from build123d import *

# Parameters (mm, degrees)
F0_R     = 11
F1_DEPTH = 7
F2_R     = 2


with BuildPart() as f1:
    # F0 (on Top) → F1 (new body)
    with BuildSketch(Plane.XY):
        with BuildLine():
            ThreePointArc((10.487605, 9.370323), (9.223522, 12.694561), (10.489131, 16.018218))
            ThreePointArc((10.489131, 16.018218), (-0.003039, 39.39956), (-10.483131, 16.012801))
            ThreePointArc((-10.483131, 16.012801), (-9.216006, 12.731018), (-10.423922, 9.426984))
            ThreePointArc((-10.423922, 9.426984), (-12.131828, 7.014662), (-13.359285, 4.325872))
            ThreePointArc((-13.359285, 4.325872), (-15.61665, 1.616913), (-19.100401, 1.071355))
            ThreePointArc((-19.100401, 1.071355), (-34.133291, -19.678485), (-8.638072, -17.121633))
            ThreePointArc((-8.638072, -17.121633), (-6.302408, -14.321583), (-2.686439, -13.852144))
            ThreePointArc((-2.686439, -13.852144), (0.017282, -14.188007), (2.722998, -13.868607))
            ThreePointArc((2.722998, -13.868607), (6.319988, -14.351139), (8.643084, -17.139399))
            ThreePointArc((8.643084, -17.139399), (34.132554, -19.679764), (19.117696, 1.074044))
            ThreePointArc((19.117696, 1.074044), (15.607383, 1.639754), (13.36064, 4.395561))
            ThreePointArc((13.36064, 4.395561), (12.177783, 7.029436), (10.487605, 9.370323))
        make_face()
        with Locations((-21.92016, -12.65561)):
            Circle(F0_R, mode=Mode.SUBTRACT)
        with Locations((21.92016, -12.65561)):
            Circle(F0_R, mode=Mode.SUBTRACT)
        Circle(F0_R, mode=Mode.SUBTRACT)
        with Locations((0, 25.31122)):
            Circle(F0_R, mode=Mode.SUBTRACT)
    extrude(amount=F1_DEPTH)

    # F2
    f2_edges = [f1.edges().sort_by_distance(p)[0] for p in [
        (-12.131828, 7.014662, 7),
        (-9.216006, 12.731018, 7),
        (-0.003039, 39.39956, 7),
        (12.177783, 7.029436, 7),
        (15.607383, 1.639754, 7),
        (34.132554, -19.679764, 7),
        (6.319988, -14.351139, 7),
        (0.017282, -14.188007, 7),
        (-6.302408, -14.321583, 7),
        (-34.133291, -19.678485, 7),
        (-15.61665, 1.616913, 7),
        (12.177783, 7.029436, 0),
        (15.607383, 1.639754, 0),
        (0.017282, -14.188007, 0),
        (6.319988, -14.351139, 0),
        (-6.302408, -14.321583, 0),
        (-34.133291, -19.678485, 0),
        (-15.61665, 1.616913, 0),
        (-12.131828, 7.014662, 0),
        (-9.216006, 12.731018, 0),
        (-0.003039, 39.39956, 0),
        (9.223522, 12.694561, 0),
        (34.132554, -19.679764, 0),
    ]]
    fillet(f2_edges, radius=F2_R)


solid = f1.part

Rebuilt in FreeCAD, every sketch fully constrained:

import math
import FreeCAD as App
import Part
import Sketcher
Q = App.Units.Quantity


def edges_at(feature, points):
    """Names of the edges that pass closest to the given points."""
    edges = feature.Shape.Edges
    near = lambda p: min(range(len(edges)), key=lambda i: edges[i].distToShape(Part.Vertex(*p))[0])
    return sorted({f"Edge{near(p) + 1}" for p in points})

doc = App.newDocument("Part")
body = doc.addObject("PartDesign::Body", "Body")

# Sketch on XY plane
sketch1 = doc.addObject("Sketcher::SketchObject", "Sketch")
body.addObject(sketch1)
sketch1.AttachmentSupport = (doc.XY_Plane, [""])
sketch1.MapMode = "FlatFace"
sketch1.addGeometry(Part.ArcOfCircle(Part.Circle(App.Vector(14.2, 12.7, 0), App.Vector(0, 0, 1), 5), math.radians(138), math.radians(222)), False)
sketch1.addGeometry(Part.ArcOfCircle(Part.Circle(App.Vector(0, 25.4, 0), App.Vector(0, 0, 1), 14), math.radians(-42), math.radians(222)), False)
sketch1.addGeometry(Part.ArcOfCircle(Part.Circle(App.Vector(-14.2, 12.7, 0), App.Vector(0, 0, 1), 5), math.radians(-41), math.radians(42)), False)
sketch1.addGeometry(Part.ArcOfCircle(Part.Circle(App.Vector(1.5, -0.8, 0), App.Vector(0, 0, 1), 15.8), math.radians(139), math.radians(161)), False)
sketch1.addGeometry(Part.ArcOfCircle(Part.Circle(App.Vector(-18.1, 6, 0), App.Vector(0, 0, 1), 5), math.radians(-102), math.radians(-19)), False)
sketch1.addGeometry(Part.ArcOfCircle(Part.Circle(App.Vector(-22, -12.7, 0), App.Vector(0, 0, 1), 14), math.radians(78), math.radians(342)), False)
sketch1.addGeometry(Part.ArcOfCircle(Part.Circle(App.Vector(-3.9, -18.7, 0), App.Vector(0, 0, 1), 5), math.radians(76), math.radians(162)), False)
sketch1.addGeometry(Part.ArcOfCircle(Part.Circle(App.Vector(0.1, -2.9, 0), App.Vector(0, 0, 1), 11.3), math.radians(-104), math.radians(-76)), False)
sketch1.addGeometry(Part.ArcOfCircle(Part.Circle(App.Vector(3.9, -18.7, 0), App.Vector(0, 0, 1), 5), math.radians(19), math.radians(104)), False)
sketch1.addGeometry(Part.ArcOfCircle(Part.Circle(App.Vector(22, -12.7, 0), App.Vector(0, 0, 1), 14), math.radians(-161), math.radians(102)), False)
sketch1.addGeometry(Part.ArcOfCircle(Part.Circle(App.Vector(18.1, 6, 0), App.Vector(0, 0, 1), 5), math.radians(-162), math.radians(-78)), False)
sketch1.addGeometry(Part.ArcOfCircle(Part.Circle(App.Vector(-0.1, -0.1, 0), App.Vector(0, 0, 1), 14.2), math.radians(18), math.radians(42)), False)
sketch1.addGeometry(Part.Circle(App.Vector(-21.9, -12.7, 0), App.Vector(0, 0, 1), 11), False)
sketch1.addGeometry(Part.Circle(App.Vector(21.9, -12.7, 0), App.Vector(0, 0, 1), 11), False)
sketch1.addGeometry(Part.Circle(App.Vector(0, 0, 0), App.Vector(0, 0, 1), 11), False)
sketch1.addGeometry(Part.Circle(App.Vector(0, 25.3, 0), App.Vector(0, 0, 1), 11), False)
sketch1.addConstraint(Sketcher.Constraint("Tangent", 0, 1, 1, 1))
sketch1.addConstraint(Sketcher.Constraint("Tangent", 1, 2, 2, 2))
sketch1.addConstraint(Sketcher.Constraint("Tangent", 2, 1, 3, 1))
sketch1.addConstraint(Sketcher.Constraint("Tangent", 3, 2, 4, 2))
sketch1.addConstraint(Sketcher.Constraint("Tangent", 4, 1, 5, 1))
sketch1.addConstraint(Sketcher.Constraint("Tangent", 5, 2, 6, 2))
sketch1.addConstraint(Sketcher.Constraint("Tangent", 6, 1, 7, 1))
sketch1.addConstraint(Sketcher.Constraint("Tangent", 7, 2, 8, 2))
sketch1.addConstraint(Sketcher.Constraint("Tangent", 8, 1, 9, 1))
sketch1.addConstraint(Sketcher.Constraint("Tangent", 9, 2, 10, 2))
sketch1.addConstraint(Sketcher.Constraint("Tangent", 10, 1, 11, 1))
sketch1.addConstraint(Sketcher.Constraint("Tangent", 11, 2, 0, 2))
sketch1.addConstraint(Sketcher.Constraint("Coincident", 14, 3, -1, 1))
sketch1.addConstraint(Sketcher.Constraint("Equal", 0, 2))
sketch1.addConstraint(Sketcher.Constraint("Equal", 2, 4))
sketch1.addConstraint(Sketcher.Constraint("Equal", 1, 5))
sketch1.addConstraint(Sketcher.Constraint("Equal", 2, 6))
sketch1.addConstraint(Sketcher.Constraint("Equal", 4, 8))
sketch1.addConstraint(Sketcher.Constraint("Equal", 5, 9))
sketch1.addConstraint(Sketcher.Constraint("Equal", 8, 10))
sketch1.addConstraint(Sketcher.Constraint("Equal", 12, 13))
sketch1.addConstraint(Sketcher.Constraint("Equal", 13, 14))
sketch1.addConstraint(Sketcher.Constraint("Equal", 14, 15))
sketch1.addConstraint(Sketcher.Constraint("Symmetric", 12, 3, 13, 3, -2))
sketch1.addConstraint(Sketcher.Constraint("PointOnObject", 15, 3, -2))
sketch1.addConstraint(Sketcher.Constraint("Diameter", 12, Q("22 mm")))
sketch1.addConstraint(Sketcher.Constraint("Radius", 0, Q("5.000001 mm")))
sketch1.addConstraint(Sketcher.Constraint("Radius", 1, Q("14.043178 mm")))
sketch1.addConstraint(Sketcher.Constraint("Radius", 3, Q("15.76041 mm")))
sketch1.addConstraint(Sketcher.Constraint("Radius", 7, Q("11.328091 mm")))
sketch1.addConstraint(Sketcher.Constraint("DistanceX", -1, 1, 7, 2, Q("2.722998 mm")))
sketch1.addConstraint(Sketcher.Constraint("Radius", 11, Q("14.229744 mm")))
sketch1.addConstraint(Sketcher.Constraint("DistanceX", 4, 3, 1, 3, Q("18.082999 mm")))
sketch1.addConstraint(Sketcher.Constraint("DistanceY", 8, 3, 13, 3, Q("6.071999 mm")))
sketch1.addConstraint(Sketcher.Constraint("DistanceY", 0, 1, 15, 3, Q("9.293002 mm")))
sketch1.addConstraint(Sketcher.Constraint("DistanceY", 8, 3, 7, 2, Q("4.859002 mm")))
sketch1.addConstraint(Sketcher.Constraint("DistanceY", 9, 3, -1, 1, Q("12.6787 mm")))
sketch1.addConstraint(Sketcher.Constraint("DistanceY", -1, 1, 1, 2, Q("16.012801 mm")))
sketch1.addConstraint(Sketcher.Constraint("DistanceX", 4, 1, -1, 1, Q("19.100401 mm")))
sketch1.addConstraint(Sketcher.Constraint("DistanceY", 8, 1, -1, 1, Q("17.139399 mm")))
sketch1.addConstraint(Sketcher.Constraint("DistanceX", 2, 3, 3, 3, Q("15.7442 mm")))
sketch1.addConstraint(Sketcher.Constraint("DistanceY", 3, 3, 11, 3, Q("0.758899 mm")))
sketch1.addConstraint(Sketcher.Constraint("DistanceX", 5, 2, 8, 3, Q("12.540101 mm")))
sketch1.addConstraint(Sketcher.Constraint("DistanceY", -1, 1, 2, 3, Q("12.686068 mm")))
sketch1.addConstraint(Sketcher.Constraint("DistanceX", 11, 3, -1, 1, Q("0.14462 mm")))
sketch1.addConstraint(Sketcher.Constraint("DistanceX", 12, 3, -1, 1, Q("21.92016 mm")))
pad1 = doc.addObject("PartDesign::Pad", "Pad")
body.addObject(pad1)
pad1.Profile = sketch1
pad1.Length = 7
doc.recompute()

fillet = doc.addObject("PartDesign::Fillet", "Fillet")
body.addObject(fillet)
fillet.Base = (pad1, edges_at(pad1, [
    (-12.132, 7.015, 7),
    (-9.216, 12.731, 7),
    (-0.003, 39.4, 7),
    (12.178, 7.029, 7),
    (15.607, 1.64, 7),
    (34.133, -19.68, 7),
    (6.32, -14.351, 7),
    (0.017, -14.188, 7),
    (-6.302, -14.322, 7),
    (-34.133, -19.678, 7),
    (-15.617, 1.617, 7),
    (12.178, 7.029, 0),
    (15.607, 1.64, 0),
    (0.017, -14.188, 0),
    (6.32, -14.351, 0),
    (-6.302, -14.322, 0),
    (-34.133, -19.678, 0),
    (-15.617, 1.617, 0),
    (-12.132, 7.015, 0),
    (-9.216, 12.731, 0),
    (-0.003, 39.4, 0),
    (9.224, 12.695, 0),
    (34.133, -19.68, 0),
]))
fillet.Radius = 2

doc.recompute()
